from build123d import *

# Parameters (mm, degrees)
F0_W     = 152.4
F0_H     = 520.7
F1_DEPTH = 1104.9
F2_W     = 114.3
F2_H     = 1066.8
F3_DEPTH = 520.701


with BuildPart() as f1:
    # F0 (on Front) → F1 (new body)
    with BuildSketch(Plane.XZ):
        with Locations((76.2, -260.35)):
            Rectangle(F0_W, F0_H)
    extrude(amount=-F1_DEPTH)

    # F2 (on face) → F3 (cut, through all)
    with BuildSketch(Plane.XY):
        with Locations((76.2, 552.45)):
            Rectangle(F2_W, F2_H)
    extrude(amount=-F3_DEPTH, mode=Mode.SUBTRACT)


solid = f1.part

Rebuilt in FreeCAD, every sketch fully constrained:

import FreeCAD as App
import Part
import Sketcher
Q = App.Units.Quantity

doc = App.newDocument("Part")
body = doc.addObject("PartDesign::Body", "Body")

# Sketch on XZ plane
sketch1 = body.newObject("Sketcher::SketchObject", "Sketch")
sketch1.AttachmentSupport = (doc.getObject("XZ_Plane"), [""])
sketch1.MapMode = "FlatFace"
sketch1.addGeometry([
    Part.LineSegment(App.Vector(0, 0, 0), App.Vector(0, -521, 0)),
    Part.LineSegment(App.Vector(0, -521, 0), App.Vector(152, -521, 0)),
    Part.LineSegment(App.Vector(152, -521, 0), App.Vector(152, 0, 0)),
    Part.LineSegment(App.Vector(152, 0, 0), App.Vector(0, 0, 0)),
], False)
sketch1.addConstraint([
    Sketcher.Constraint("Coincident", 0, 2, 1, 1),
    Sketcher.Constraint("Coincident", 1, 2, 2, 1),
    Sketcher.Constraint("Coincident", 2, 2, 3, 1),
    Sketcher.Constraint("Coincident", 3, 2, 0, 1),
    Sketcher.Constraint("Vertical", 0),
    Sketcher.Constraint("Horizontal", 1),
    Sketcher.Constraint("Vertical", 2),
    Sketcher.Constraint("Horizontal", 3),
    Sketcher.Constraint("Coincident", 3, 2, -1, 1),
    Sketcher.Constraint("DistanceX", 1, 1, 1, 2, Q("6 in")),
    Sketcher.Constraint("DistanceY", 0, 2, 0, 1, Q("20.5 in")),
])
pad1 = body.newObject("PartDesign::Pad", "Pad")
pad1.Profile = sketch1
pad1.Length = Q("43.5 in")
pad1.Reversed = True

# Sketch on XY plane
sketch2 = body.newObject("Sketcher::SketchObject", "Sketch001")
sketch2.AttachmentSupport = (doc.getObject("XY_Plane"), [""])
sketch2.MapMode = "FlatFace"
sketch2.addGeometry([
    Part.LineSegment(App.Vector(19, 1086, 0), App.Vector(19, 19, 0)),
    Part.LineSegment(App.Vector(19, 19, 0), App.Vector(133, 19, 0)),
    Part.LineSegment(App.Vector(133, 19, 0), App.Vector(133, 1086, 0)),
    Part.LineSegment(App.Vector(133, 1086, 0), App.Vector(19, 1086, 0)),
], False)
sketch2.addConstraint([
    Sketcher.Constraint("Coincident", 0, 2, 1, 1),
    Sketcher.Constraint("Coincident", 1, 2, 2, 1),
    Sketcher.Constraint("Coincident", 2, 2, 3, 1),
    Sketcher.Constraint("Coincident", 3, 2, 0, 1),
    Sketcher.Constraint("Vertical", 0),
    Sketcher.Constraint("Horizontal", 1),
    Sketcher.Constraint("Vertical", 2),
    Sketcher.Constraint("Horizontal", 3),
    Sketcher.Constraint("DistanceY", 0, 2, 0, 1, Q("42 in")),
    Sketcher.Constraint("DistanceX", 1, 1, 1, 2, Q("4.5 in")),
    Sketcher.Constraint("DistanceX", -1, 1, 0, 2, Q("0.75 in")),
    Sketcher.Constraint("DistanceY", -1, 1, 0, 2, Q("0.75 in")),
])
pocket1 = body.newObject("PartDesign::Pocket", "Pocket")
pocket1.Profile = sketch2
pocket1.Type = "ThroughAll"

doc.recompute()
